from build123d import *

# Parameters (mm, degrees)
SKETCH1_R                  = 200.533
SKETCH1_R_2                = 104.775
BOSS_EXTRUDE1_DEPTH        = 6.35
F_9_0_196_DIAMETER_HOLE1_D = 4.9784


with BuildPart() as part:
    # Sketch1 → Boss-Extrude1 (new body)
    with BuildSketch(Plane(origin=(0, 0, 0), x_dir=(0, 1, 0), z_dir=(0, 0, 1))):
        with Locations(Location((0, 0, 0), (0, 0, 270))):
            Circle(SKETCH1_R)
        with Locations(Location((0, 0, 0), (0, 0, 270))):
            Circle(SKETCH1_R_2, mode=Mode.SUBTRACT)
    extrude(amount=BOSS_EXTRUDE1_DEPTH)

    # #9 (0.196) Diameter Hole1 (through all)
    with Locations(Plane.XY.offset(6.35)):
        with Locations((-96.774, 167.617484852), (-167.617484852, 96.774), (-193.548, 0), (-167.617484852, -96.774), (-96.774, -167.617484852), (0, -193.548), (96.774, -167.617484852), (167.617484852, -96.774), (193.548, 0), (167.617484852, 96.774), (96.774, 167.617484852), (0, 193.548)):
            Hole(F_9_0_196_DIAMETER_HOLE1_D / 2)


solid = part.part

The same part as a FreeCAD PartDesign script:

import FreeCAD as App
import Part
import Sketcher
from FreeCAD import Vector
Q = App.Units.Quantity

doc = App.newDocument("Part")
body = doc.addObject("PartDesign::Body", "Body")

sketch1 = body.newObject("Sketcher::SketchObject", "Sketch")
sketch1.AttachmentSupport = (doc.getObject("XY_Plane"), [""])
sketch1.MapMode = "FlatFace"
sketch1.addGeometry([
    Part.Circle(Vector(0, 0, 0), Vector(0, 0, 1), 201),
    Part.Circle(Vector(0, 0, 0), Vector(0, 0, 1), 105),
], False)
sketch1.addConstraint([
    Sketcher.Constraint("Coincident", 0, 3, -1, 1),
    Sketcher.Constraint("Coincident", 1, 3, -1, 1),
    Sketcher.Constraint("Diameter", 0, Q("15.79 in")),
    Sketcher.Constraint("Diameter", 1, Q("8.25 in")),
])
pad1 = body.newObject("PartDesign::Pad", "Pad")
pad1.Profile = sketch1
pad1.Length = Q("0.25 in")

sketch2 = body.newObject("Sketcher::SketchObject", "Sketch001")
sketch2.AttachmentSupport = (doc.getObject("XY_Plane"), [""])
sketch2.MapMode = "FlatFace"
sketch2.AttachmentOffset = App.Placement(Vector(0, 0, 0.25 * 25.4), App.Rotation())
sketch2.addGeometry([
    Part.Circle(Vector(-96.8, 167.6, 0), Vector(0, 0, 1), 2.5),
    Part.Circle(Vector(-167.6, 96.8, 0), Vector(0, 0, 1), 2.5),
    Part.Circle(Vector(-193.5, 0, 0), Vector(0, 0, 1), 2.5),
    Part.Circle(Vector(-167.6, -96.8, 0), Vector(0, 0, 1), 2.5),
    Part.Circle(Vector(-96.8, -167.6, 0), Vector(0, 0, 1), 2.5),
    Part.Circle(Vector(0, -193.5, 0), Vector(0, 0, 1), 2.5),
    Part.Circle(Vector(96.8, -167.6, 0), Vector(0, 0, 1), 2.5),
    Part.Circle(Vector(167.6, -96.8, 0), Vector(0, 0, 1), 2.5),
    Part.Circle(Vector(193.5, 0, 0), Vector(0, 0, 1), 2.5),
    Part.Circle(Vector(167.6, 96.8, 0), Vector(0, 0, 1), 2.5),
    Part.Circle(Vector(96.8, 167.6, 0), Vector(0, 0, 1), 2.5),
    Part.Circle(Vector(0, 193.5, 0), Vector(0, 0, 1), 2.5),
], False)
sketch2.addConstraint([
    Sketcher.Constraint("Equal", 0, 1),
    Sketcher.Constraint("Equal", 1, 2),
    Sketcher.Constraint("Equal", 2, 3),
    Sketcher.Constraint("Equal", 3, 4),
    Sketcher.Constraint("Equal", 4, 5),
    Sketcher.Constraint("Equal", 5, 6),
    Sketcher.Constraint("Equal", 6, 7),
    Sketcher.Constraint("Equal", 7, 8),
    Sketcher.Constraint("Equal", 8, 9),
    Sketcher.Constraint("Equal", 9, 10),
    Sketcher.Constraint("Equal", 10, 11),
    Sketcher.Constraint("Symmetric", 0, 3, 6, 3, -1, 1),
    Sketcher.Constraint("Symmetric", 1, 3, 7, 3, -1, 1),
    Sketcher.Constraint("Symmetric", 2, 3, 8, 3, -1, 1),
    Sketcher.Constraint("Symmetric", 3, 3, 9, 3, -1, 1),
    Sketcher.Constraint("Symmetric", 4, 3, 10, 3, -1, 1),
    Sketcher.Constraint("Symmetric", 5, 3, 11, 3, -1, 1),
    Sketcher.Constraint("Symmetric", 4, 3, 6, 3, -2),
    Sketcher.Constraint("Symmetric", 3, 3, 7, 3, -2),
    Sketcher.Constraint("PointOnObject", 2, 3, -1),
    Sketcher.Constraint("PointOnObject", 5, 3, -2),
    Sketcher.Constraint("Diameter", 0, Q("0.196 in")),
    Sketcher.Constraint("DistanceX", 0, 3, -1, 1, Q("3.81 in")),
    Sketcher.Constraint("DistanceY", -1, 1, 1, 3, Q("3.81 in")),
    Sketcher.Constraint("DistanceX", 2, 3, -1, 1, Q("7.62 in")),
    Sketcher.Constraint("DistanceY", 5, 3, -1, 1, Q("7.62 in")),
    Sketcher.Constraint("DistanceY", 4, 3, 0, 3, Q("335.23497 mm")),
    Sketcher.Constraint("DistanceX", 3, 3, 7, 3, Q("335.23497 mm")),
])
doc.recompute()
hole = body.newObject("PartDesign::Hole", "Hole")
hole.Profile = sketch2
hole.ThreadType = "None"
hole.Diameter = Q("0.196 in")
hole.DepthType = "ThroughAll"

doc.recompute()
